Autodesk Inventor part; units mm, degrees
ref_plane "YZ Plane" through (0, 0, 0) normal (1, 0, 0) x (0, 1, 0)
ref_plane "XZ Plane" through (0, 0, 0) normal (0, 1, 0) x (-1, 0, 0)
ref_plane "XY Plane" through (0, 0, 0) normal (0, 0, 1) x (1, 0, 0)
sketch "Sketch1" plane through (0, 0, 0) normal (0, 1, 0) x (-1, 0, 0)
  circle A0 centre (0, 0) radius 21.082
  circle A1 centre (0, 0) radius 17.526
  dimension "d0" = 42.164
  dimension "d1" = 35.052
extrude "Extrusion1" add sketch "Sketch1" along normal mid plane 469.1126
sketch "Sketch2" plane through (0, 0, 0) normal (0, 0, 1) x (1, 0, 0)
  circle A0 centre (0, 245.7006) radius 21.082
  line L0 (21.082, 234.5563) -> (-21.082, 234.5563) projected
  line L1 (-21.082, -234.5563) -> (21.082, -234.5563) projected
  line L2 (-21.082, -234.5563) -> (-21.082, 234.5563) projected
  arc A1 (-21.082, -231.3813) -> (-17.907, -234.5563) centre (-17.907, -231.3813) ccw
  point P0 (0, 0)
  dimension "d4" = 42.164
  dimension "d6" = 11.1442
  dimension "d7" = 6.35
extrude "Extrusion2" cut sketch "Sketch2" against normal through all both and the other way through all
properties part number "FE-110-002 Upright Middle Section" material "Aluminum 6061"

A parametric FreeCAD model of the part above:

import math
import FreeCAD as App
import Part
import Sketcher
Q = App.Units.Quantity

doc = App.newDocument("Part")
params = doc.addObject("Spreadsheet::Sheet", "Params")
for row, (alias, value) in enumerate([
    ("sketch1_diameter", "1.66 in"),
    ("sketch1_diameter2", "1.38 in"),
    ("pad1_length", "18.469 in"),
    ("sketch2_diameter", "1.66 in"),
    ("sketch2_radius", "0.125 in"),
], start=1):
    params.set(f"A{row}", alias)
    params.set(f"B{row}", "=" + value)
    params.setAlias(f"B{row}", alias)

body = doc.addObject("PartDesign::Body", "Body")

# Sketch on XZ plane
sketch1 = body.newObject("Sketcher::SketchObject", "Sketch")
sketch1.AttachmentSupport = (doc.getObject("XZ_Plane"), [""])
sketch1.MapMode = "FlatFace"
sketch1.addGeometry([
    Part.Circle(App.Vector(0, 0, 0), App.Vector(0, 0, 1), 21),
    Part.Circle(App.Vector(0, 0, 0), App.Vector(0, 0, 1), 18),
], False)
sketch1.addConstraint([
    Sketcher.Constraint("Coincident", 0, 3, -1, 1),
    Sketcher.Constraint("Coincident", 1, 3, -1, 1),
    Sketcher.Constraint("Diameter", 0, Q("1.66 in")),
    Sketcher.Constraint("Diameter", 1, Q("1.38 in")),
])
sketch1.setExpression("Constraints[2]", "Params.sketch1_diameter")
sketch1.setExpression("Constraints[3]", "Params.sketch1_diameter2")
pad1 = body.newObject("PartDesign::Pad", "Pad")
pad1.Profile = sketch1
pad1.setExpression("Length", "Params.pad1_length")
pad1.Midplane = True

# Sketch on XY plane
sketch2 = body.newObject("Sketcher::SketchObject", "Sketch001")
sketch2.AttachmentSupport = (doc.getObject("XY_Plane"), [""])
sketch2.MapMode = "FlatFace"
sketch2.addGeometry([
    Part.Circle(App.Vector(0, 245.7, 0), App.Vector(0, 0, 1), 21.1),
    Part.ArcOfCircle(Part.Circle(App.Vector(-17.9, -231.4, 0), App.Vector(0, 0, 1), 3.2), math.radians(180), math.radians(270)),
    Part.LineSegment(App.Vector(-21.1, -231.4, 0), App.Vector(-21.1, -234.6, 0)),
    Part.LineSegment(App.Vector(-21.1, -234.6, 0), App.Vector(-17.9, -234.6, 0)),
], False)
sketch2.addConstraint([
    Sketcher.Constraint("Tangent", 1, 1, 2, 1),
    Sketcher.Constraint("Coincident", 2, 2, 3, 1),
    Sketcher.Constraint("Tangent", 3, 2, 1, 2),
    Sketcher.Constraint("Vertical", 2),
    Sketcher.Constraint("Horizontal", 3),
    Sketcher.Constraint("PointOnObject", 0, 3, -2),
    Sketcher.Constraint("Diameter", 0, Q("1.66 in")),
    Sketcher.Constraint("Radius", 1, Q("0.125 in")),
    Sketcher.Constraint("DistanceX", 1, 1, -1, 1, Q("0.83 in")),
    Sketcher.Constraint("DistanceY", 1, 3, -1, 1, Q("9.1095 in")),
    Sketcher.Constraint("DistanceY", -1, 1, 0, 3, Q("245.7006 mm")),
])
sketch2.setExpression("Constraints[6]", "Params.sketch2_diameter")
sketch2.setExpression("Constraints[7]", "Params.sketch2_radius")
pocket1 = body.newObject("PartDesign::Pocket", "Pocket")
pocket1.Profile = sketch2
pocket1.Type = "ThroughAll"
pocket1.Midplane = True

doc.recompute()
